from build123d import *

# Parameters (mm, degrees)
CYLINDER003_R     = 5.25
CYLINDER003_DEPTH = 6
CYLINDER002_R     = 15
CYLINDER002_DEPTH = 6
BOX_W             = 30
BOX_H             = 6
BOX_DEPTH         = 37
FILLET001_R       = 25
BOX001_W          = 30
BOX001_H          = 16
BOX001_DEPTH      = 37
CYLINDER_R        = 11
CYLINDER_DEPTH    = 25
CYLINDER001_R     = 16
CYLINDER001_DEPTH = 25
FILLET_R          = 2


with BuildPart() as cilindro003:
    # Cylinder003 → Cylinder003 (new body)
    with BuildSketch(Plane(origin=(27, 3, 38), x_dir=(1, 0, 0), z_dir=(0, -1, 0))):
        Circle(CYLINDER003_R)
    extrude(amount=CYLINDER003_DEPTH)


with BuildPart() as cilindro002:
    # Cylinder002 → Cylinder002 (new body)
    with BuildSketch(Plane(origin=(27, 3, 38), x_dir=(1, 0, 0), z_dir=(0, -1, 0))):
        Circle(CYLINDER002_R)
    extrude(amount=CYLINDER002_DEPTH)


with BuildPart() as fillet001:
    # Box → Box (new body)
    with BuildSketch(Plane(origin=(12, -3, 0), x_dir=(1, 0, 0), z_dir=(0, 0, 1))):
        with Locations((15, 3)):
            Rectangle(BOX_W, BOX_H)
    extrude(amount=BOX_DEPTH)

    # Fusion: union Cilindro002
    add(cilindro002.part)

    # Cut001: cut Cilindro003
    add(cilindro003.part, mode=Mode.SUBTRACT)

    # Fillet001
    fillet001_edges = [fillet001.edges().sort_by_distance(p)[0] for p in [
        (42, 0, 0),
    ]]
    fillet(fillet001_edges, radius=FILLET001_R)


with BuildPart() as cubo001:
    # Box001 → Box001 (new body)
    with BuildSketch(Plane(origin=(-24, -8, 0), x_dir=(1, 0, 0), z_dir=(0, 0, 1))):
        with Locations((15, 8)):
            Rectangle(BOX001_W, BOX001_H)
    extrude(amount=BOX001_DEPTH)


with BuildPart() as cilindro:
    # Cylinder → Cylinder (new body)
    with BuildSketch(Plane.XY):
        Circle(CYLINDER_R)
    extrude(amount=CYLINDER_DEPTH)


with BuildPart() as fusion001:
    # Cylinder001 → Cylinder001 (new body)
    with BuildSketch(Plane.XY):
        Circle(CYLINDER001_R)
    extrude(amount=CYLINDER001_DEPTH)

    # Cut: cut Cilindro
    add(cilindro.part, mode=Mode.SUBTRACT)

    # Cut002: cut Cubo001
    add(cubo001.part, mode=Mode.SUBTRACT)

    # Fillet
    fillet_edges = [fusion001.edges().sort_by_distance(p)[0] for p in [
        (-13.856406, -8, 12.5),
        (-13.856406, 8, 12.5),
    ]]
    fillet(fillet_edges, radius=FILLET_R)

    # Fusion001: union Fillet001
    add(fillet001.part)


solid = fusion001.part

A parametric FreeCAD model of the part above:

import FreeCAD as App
import Part
import Sketcher

V = App.Vector


def edges_at(feature, points):
    """Names of the edges that pass closest to the given points."""
    edges = feature.Shape.Edges
    near = lambda p: min(range(len(edges)), key=lambda i: edges[i].distToShape(Part.Vertex(*p))[0])
    return sorted({f"Edge{near(p) + 1}" for p in points})

doc = App.newDocument("Part")
body = doc.addObject("PartDesign::Body", "Body")

sketch1 = doc.addObject("Sketcher::SketchObject", "Sketch")
body.addObject(sketch1)
sketch1.AttachmentSupport = (doc.XZ_Plane, [""])
sketch1.MapMode = "FlatFace"
sketch1.AttachmentOffset = App.Placement(V(0, 0, -3), App.Rotation())
sketch1.addGeometry(Part.Circle(V(27, 38, 0), V(0, 0, 1), 5), False)
sketch1.addConstraint(Sketcher.Constraint("Diameter", 0, 10.5))
sketch1.addConstraint(Sketcher.Constraint("DistanceX", -1, 1, 0, 3, 27.0))
sketch1.addConstraint(Sketcher.Constraint("DistanceY", -1, 1, 0, 3, 38.0))
pad1 = doc.addObject("PartDesign::Pad", "Pad")
body.addObject(pad1)
pad1.Profile = sketch1
pad1.Length = 6
body2 = doc.addObject("PartDesign::Body", "Body001")

sketch2 = doc.addObject("Sketcher::SketchObject", "Sketch001")
body2.addObject(sketch2)
sketch2.AttachmentSupport = (doc.getObject("XZ_Plane001"), [""])
sketch2.MapMode = "FlatFace"
sketch2.AttachmentOffset = App.Placement(V(0, 0, -3), App.Rotation())
sketch2.addGeometry(Part.Circle(V(27, 38, 0), V(0, 0, 1), 15), False)
sketch2.addConstraint(Sketcher.Constraint("Diameter", 0, 30.0))
sketch2.addConstraint(Sketcher.Constraint("DistanceX", -1, 1, 0, 3, 27.0))
sketch2.addConstraint(Sketcher.Constraint("DistanceY", -1, 1, 0, 3, 38.0))
pad2 = doc.addObject("PartDesign::Pad", "Pad001")
body2.addObject(pad2)
pad2.Profile = sketch2
pad2.Length = 6
body3 = doc.addObject("PartDesign::Body", "Body002")

sketch3 = doc.addObject("Sketcher::SketchObject", "Sketch002")
body3.addObject(sketch3)
sketch3.AttachmentSupport = (doc.getObject("XY_Plane002"), [""])
sketch3.MapMode = "FlatFace"
sketch3.addGeometry(Part.LineSegment(V(12, 3, 0), V(12, -3, 0)), False)
sketch3.addGeometry(Part.LineSegment(V(12, -3, 0), V(42, -3, 0)), False)
sketch3.addGeometry(Part.LineSegment(V(42, -3, 0), V(42, 3, 0)), False)
sketch3.addGeometry(Part.LineSegment(V(42, 3, 0), V(12, 3, 0)), False)
sketch3.addConstraint(Sketcher.Constraint("Coincident", 0, 2, 1, 1))
sketch3.addConstraint(Sketcher.Constraint("Coincident", 1, 2, 2, 1))
sketch3.addConstraint(Sketcher.Constraint("Coincident", 2, 2, 3, 1))
sketch3.addConstraint(Sketcher.Constraint("Coincident", 3, 2, 0, 1))
sketch3.addConstraint(Sketcher.Constraint("Vertical", 0))
sketch3.addConstraint(Sketcher.Constraint("Horizontal", 1))
sketch3.addConstraint(Sketcher.Constraint("Vertical", 2))
sketch3.addConstraint(Sketcher.Constraint("Horizontal", 3))
sketch3.addConstraint(Sketcher.Constraint("DistanceX", 1, 1, 1, 2, 30.0))
sketch3.addConstraint(Sketcher.Constraint("DistanceY", 0, 2, 0, 1, 6.0))
sketch3.addConstraint(Sketcher.Constraint("DistanceX", -1, 1, 0, 2, 12.0))
sketch3.addConstraint(Sketcher.Constraint("DistanceY", 0, 2, -1, 1, 3.0))
pad3 = doc.addObject("PartDesign::Pad", "Pad002")
body3.addObject(pad3)
pad3.Profile = sketch3
pad3.Length = 37
doc.recompute()

boolean = doc.addObject("PartDesign::Boolean", "Boolean")
body3.addObject(boolean)
boolean.Type = "Fuse"
boolean.addObjects([body2])
doc.recompute()

boolean2 = doc.addObject("PartDesign::Boolean", "Boolean001")
body3.addObject(boolean2)
boolean2.Type = "Cut"
boolean2.addObjects([body])
doc.recompute()

fillet = doc.addObject("PartDesign::Fillet", "Fillet")
body3.addObject(fillet)
fillet.Base = (boolean2, edges_at(boolean2, [(42, 0, 0)]))
fillet.Radius = 25
body4 = doc.addObject("PartDesign::Body", "Body003")

sketch4 = doc.addObject("Sketcher::SketchObject", "Sketch003")
body4.addObject(sketch4)
sketch4.AttachmentSupport = (doc.getObject("XY_Plane003"), [""])
sketch4.MapMode = "FlatFace"
sketch4.addGeometry(Part.LineSegment(V(-24, 8, 0), V(-24, -8, 0)), False)
sketch4.addGeometry(Part.LineSegment(V(-24, -8, 0), V(6, -8, 0)), False)
sketch4.addGeometry(Part.LineSegment(V(6, -8, 0), V(6, 8, 0)), False)
sketch4.addGeometry(Part.LineSegment(V(6, 8, 0), V(-24, 8, 0)), False)
sketch4.addConstraint(Sketcher.Constraint("Coincident", 0, 2, 1, 1))
sketch4.addConstraint(Sketcher.Constraint("Coincident", 1, 2, 2, 1))
sketch4.addConstraint(Sketcher.Constraint("Coincident", 2, 2, 3, 1))
sketch4.addConstraint(Sketcher.Constraint("Coincident", 3, 2, 0, 1))
sketch4.addConstraint(Sketcher.Constraint("Vertical", 0))
sketch4.addConstraint(Sketcher.Constraint("Horizontal", 1))
sketch4.addConstraint(Sketcher.Constraint("Vertical", 2))
sketch4.addConstraint(Sketcher.Constraint("Horizontal", 3))
sketch4.addConstraint(Sketcher.Constraint("DistanceX", 1, 1, 1, 2, 30.0))
sketch4.addConstraint(Sketcher.Constraint("DistanceY", 0, 2, 0, 1, 16.0))
sketch4.addConstraint(Sketcher.Constraint("DistanceX", 0, 2, -1, 1, 24.0))
sketch4.addConstraint(Sketcher.Constraint("DistanceY", 0, 2, -1, 1, 8.0))
pad4 = doc.addObject("PartDesign::Pad", "Pad003")
body4.addObject(pad4)
pad4.Profile = sketch4
pad4.Length = 37
body5 = doc.addObject("PartDesign::Body", "Body004")

sketch5 = doc.addObject("Sketcher::SketchObject", "Sketch004")
body5.addObject(sketch5)
sketch5.AttachmentSupport = (doc.getObject("XY_Plane004"), [""])
sketch5.MapMode = "FlatFace"
sketch5.addGeometry(Part.Circle(V(0, 0, 0), V(0, 0, 1), 11), False)
sketch5.addConstraint(Sketcher.Constraint("Coincident", 0, 3, -1, 1))
sketch5.addConstraint(Sketcher.Constraint("Diameter", 0, 22.0))
pad5 = doc.addObject("PartDesign::Pad", "Pad004")
body5.addObject(pad5)
pad5.Profile = sketch5
pad5.Length = 25
body6 = doc.addObject("PartDesign::Body", "Body005")

sketch6 = doc.addObject("Sketcher::SketchObject", "Sketch005")
body6.addObject(sketch6)
sketch6.AttachmentSupport = (doc.getObject("XY_Plane005"), [""])
sketch6.MapMode = "FlatFace"
sketch6.addGeometry(Part.Circle(V(0, 0, 0), V(0, 0, 1), 16), False)
sketch6.addConstraint(Sketcher.Constraint("Coincident", 0, 3, -1, 1))
sketch6.addConstraint(Sketcher.Constraint("Diameter", 0, 32.0))
pad6 = doc.addObject("PartDesign::Pad", "Pad005")
body6.addObject(pad6)
pad6.Profile = sketch6
pad6.Length = 25
doc.recompute()

boolean3 = doc.addObject("PartDesign::Boolean", "Boolean002")
body6.addObject(boolean3)
boolean3.Type = "Cut"
boolean3.addObjects([body5])
doc.recompute()

boolean4 = doc.addObject("PartDesign::Boolean", "Boolean003")
body6.addObject(boolean4)
boolean4.Type = "Cut"
boolean4.addObjects([body4])
doc.recompute()

fillet2 = doc.addObject("PartDesign::Fillet", "Fillet001")
body6.addObject(fillet2)
fillet2.Base = (boolean4, edges_at(boolean4, [(-13.856, -8, 12.5), (-13.856, 8, 12.5)]))
fillet2.Radius = 2
doc.recompute()

boolean5 = doc.addObject("PartDesign::Boolean", "Boolean004")
body6.addObject(boolean5)
boolean5.Type = "Fuse"
boolean5.addObjects([body3])

doc.recompute()
